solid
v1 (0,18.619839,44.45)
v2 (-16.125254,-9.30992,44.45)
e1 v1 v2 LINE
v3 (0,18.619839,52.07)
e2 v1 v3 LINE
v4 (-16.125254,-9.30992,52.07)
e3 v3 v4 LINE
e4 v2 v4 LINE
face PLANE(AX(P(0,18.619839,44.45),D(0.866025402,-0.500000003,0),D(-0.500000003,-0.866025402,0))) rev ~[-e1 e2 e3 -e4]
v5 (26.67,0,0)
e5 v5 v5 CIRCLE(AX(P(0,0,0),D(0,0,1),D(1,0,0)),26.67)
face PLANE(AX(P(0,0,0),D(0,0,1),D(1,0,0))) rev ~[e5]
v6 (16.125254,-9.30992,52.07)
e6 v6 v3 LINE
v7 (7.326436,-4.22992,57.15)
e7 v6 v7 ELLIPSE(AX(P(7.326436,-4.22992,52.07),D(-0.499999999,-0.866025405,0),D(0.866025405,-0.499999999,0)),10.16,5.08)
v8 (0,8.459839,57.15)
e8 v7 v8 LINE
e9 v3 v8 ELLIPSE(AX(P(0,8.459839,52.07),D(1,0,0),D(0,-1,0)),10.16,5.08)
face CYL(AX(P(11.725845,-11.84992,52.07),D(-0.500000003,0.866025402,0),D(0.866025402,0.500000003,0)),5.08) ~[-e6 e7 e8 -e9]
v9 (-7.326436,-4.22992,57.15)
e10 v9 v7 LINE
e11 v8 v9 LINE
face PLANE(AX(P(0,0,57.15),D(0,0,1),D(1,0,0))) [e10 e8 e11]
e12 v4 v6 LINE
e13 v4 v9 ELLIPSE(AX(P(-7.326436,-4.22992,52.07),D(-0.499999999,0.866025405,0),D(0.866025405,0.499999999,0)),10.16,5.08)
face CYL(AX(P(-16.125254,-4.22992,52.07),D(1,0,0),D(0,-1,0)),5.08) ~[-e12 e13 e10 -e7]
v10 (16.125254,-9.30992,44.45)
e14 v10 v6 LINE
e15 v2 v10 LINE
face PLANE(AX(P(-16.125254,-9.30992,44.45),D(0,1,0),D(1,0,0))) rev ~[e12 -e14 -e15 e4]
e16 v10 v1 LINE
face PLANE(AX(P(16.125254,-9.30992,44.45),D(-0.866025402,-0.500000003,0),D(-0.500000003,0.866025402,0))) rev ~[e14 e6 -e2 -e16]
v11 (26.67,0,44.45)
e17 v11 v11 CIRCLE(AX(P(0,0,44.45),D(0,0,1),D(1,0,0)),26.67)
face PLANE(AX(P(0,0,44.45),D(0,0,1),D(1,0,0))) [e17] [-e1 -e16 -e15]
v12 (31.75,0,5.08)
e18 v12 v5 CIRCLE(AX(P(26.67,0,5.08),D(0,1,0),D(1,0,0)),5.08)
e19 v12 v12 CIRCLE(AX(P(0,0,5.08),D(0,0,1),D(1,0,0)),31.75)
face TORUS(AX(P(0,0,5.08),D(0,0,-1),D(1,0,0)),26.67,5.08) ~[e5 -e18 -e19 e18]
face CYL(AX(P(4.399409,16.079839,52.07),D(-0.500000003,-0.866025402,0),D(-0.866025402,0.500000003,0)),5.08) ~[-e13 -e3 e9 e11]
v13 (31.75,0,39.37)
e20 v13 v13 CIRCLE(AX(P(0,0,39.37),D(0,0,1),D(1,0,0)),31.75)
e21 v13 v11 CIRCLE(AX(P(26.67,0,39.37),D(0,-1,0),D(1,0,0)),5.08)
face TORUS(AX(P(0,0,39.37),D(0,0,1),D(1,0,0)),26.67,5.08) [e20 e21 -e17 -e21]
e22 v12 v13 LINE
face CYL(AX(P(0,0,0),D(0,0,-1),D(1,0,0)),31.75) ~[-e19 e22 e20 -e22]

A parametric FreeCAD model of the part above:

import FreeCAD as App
import Part
import Sketcher

V = App.Vector
Q = App.Units.Quantity


def edges_at(feature, points):
    """Names of the edges that pass closest to the given points."""
    edges = feature.Shape.Edges
    near = lambda p: min(range(len(edges)), key=lambda i: edges[i].distToShape(Part.Vertex(*p))[0])
    return sorted({f"Edge{near(p) + 1}" for p in points})

doc = App.newDocument("Part")
body = doc.addObject("PartDesign::Body", "Body")

# Sketch on XY plane
sketch1 = body.newObject("Sketcher::SketchObject", "Sketch")
sketch1.AttachmentSupport = (doc.getObject("XY_Plane"), [""])
sketch1.MapMode = "FlatFace"
sketch1.addGeometry(Part.Circle(V(0, 0, 0), V(0, 0, 1), 32), False)
sketch1.addConstraint(Sketcher.Constraint("Coincident", 0, 3, -1, 1))
sketch1.addConstraint(Sketcher.Constraint("Diameter", 0, Q("2.5 in")))
pad1 = body.newObject("PartDesign::Pad", "Pad")
pad1.Profile = sketch1
pad1.Length = Q("1.75 in")

# Sketch on XY plane
sketch2 = body.newObject("Sketcher::SketchObject", "Sketch001")
sketch2.AttachmentSupport = (doc.getObject("XY_Plane"), [""])
sketch2.MapMode = "FlatFace"
sketch2.AttachmentOffset = App.Placement(V(0, 0, 1.75 * 25.4), App.Rotation())
sketch2.addGeometry(Part.LineSegment(V(-16, -9, 0), V(16, -9, 0)), False)
sketch2.addGeometry(Part.LineSegment(V(16, -9, 0), V(0, 19, 0)), False)
sketch2.addGeometry(Part.LineSegment(V(0, 19, 0), V(-16, -9, 0)), False)
sketch2.addConstraint(Sketcher.Constraint("Coincident", 0, 2, 1, 1))
sketch2.addConstraint(Sketcher.Constraint("Coincident", 1, 2, 2, 1))
sketch2.addConstraint(Sketcher.Constraint("Coincident", 2, 2, 0, 1))
sketch2.addConstraint(Sketcher.Constraint("Horizontal", 0))
sketch2.addConstraint(Sketcher.Constraint("PointOnObject", 1, 2, -2))
sketch2.addConstraint(Sketcher.Constraint("Equal", 1, 2))
sketch2.addConstraint(Sketcher.Constraint("Angle", 1, Q("120 deg")))
sketch2.addConstraint(Sketcher.Constraint("DistanceX", 0, 1, 0, 2, Q("32.250508 mm")))
sketch2.addConstraint(Sketcher.Constraint("DistanceY", 0, 2, -1, 1, Q("9.30992 mm")))
pad2 = body.newObject("PartDesign::Pad", "Pad001")
pad2.Profile = sketch2
pad2.Length = Q("0.5 in")
doc.recompute()

fillet = body.newObject("PartDesign::Fillet", "Fillet")
fillet.Base = (pad2, edges_at(pad2, [
    (-31.75, 0, 0),
    (-31.75, 0, 44.45),
    (0, -9.31, 57.15),
    (-8.063, 4.655, 57.15),
    (8.063, 4.655, 57.15),
]))
fillet.Radius = Q("0.2 in")

doc.recompute()
